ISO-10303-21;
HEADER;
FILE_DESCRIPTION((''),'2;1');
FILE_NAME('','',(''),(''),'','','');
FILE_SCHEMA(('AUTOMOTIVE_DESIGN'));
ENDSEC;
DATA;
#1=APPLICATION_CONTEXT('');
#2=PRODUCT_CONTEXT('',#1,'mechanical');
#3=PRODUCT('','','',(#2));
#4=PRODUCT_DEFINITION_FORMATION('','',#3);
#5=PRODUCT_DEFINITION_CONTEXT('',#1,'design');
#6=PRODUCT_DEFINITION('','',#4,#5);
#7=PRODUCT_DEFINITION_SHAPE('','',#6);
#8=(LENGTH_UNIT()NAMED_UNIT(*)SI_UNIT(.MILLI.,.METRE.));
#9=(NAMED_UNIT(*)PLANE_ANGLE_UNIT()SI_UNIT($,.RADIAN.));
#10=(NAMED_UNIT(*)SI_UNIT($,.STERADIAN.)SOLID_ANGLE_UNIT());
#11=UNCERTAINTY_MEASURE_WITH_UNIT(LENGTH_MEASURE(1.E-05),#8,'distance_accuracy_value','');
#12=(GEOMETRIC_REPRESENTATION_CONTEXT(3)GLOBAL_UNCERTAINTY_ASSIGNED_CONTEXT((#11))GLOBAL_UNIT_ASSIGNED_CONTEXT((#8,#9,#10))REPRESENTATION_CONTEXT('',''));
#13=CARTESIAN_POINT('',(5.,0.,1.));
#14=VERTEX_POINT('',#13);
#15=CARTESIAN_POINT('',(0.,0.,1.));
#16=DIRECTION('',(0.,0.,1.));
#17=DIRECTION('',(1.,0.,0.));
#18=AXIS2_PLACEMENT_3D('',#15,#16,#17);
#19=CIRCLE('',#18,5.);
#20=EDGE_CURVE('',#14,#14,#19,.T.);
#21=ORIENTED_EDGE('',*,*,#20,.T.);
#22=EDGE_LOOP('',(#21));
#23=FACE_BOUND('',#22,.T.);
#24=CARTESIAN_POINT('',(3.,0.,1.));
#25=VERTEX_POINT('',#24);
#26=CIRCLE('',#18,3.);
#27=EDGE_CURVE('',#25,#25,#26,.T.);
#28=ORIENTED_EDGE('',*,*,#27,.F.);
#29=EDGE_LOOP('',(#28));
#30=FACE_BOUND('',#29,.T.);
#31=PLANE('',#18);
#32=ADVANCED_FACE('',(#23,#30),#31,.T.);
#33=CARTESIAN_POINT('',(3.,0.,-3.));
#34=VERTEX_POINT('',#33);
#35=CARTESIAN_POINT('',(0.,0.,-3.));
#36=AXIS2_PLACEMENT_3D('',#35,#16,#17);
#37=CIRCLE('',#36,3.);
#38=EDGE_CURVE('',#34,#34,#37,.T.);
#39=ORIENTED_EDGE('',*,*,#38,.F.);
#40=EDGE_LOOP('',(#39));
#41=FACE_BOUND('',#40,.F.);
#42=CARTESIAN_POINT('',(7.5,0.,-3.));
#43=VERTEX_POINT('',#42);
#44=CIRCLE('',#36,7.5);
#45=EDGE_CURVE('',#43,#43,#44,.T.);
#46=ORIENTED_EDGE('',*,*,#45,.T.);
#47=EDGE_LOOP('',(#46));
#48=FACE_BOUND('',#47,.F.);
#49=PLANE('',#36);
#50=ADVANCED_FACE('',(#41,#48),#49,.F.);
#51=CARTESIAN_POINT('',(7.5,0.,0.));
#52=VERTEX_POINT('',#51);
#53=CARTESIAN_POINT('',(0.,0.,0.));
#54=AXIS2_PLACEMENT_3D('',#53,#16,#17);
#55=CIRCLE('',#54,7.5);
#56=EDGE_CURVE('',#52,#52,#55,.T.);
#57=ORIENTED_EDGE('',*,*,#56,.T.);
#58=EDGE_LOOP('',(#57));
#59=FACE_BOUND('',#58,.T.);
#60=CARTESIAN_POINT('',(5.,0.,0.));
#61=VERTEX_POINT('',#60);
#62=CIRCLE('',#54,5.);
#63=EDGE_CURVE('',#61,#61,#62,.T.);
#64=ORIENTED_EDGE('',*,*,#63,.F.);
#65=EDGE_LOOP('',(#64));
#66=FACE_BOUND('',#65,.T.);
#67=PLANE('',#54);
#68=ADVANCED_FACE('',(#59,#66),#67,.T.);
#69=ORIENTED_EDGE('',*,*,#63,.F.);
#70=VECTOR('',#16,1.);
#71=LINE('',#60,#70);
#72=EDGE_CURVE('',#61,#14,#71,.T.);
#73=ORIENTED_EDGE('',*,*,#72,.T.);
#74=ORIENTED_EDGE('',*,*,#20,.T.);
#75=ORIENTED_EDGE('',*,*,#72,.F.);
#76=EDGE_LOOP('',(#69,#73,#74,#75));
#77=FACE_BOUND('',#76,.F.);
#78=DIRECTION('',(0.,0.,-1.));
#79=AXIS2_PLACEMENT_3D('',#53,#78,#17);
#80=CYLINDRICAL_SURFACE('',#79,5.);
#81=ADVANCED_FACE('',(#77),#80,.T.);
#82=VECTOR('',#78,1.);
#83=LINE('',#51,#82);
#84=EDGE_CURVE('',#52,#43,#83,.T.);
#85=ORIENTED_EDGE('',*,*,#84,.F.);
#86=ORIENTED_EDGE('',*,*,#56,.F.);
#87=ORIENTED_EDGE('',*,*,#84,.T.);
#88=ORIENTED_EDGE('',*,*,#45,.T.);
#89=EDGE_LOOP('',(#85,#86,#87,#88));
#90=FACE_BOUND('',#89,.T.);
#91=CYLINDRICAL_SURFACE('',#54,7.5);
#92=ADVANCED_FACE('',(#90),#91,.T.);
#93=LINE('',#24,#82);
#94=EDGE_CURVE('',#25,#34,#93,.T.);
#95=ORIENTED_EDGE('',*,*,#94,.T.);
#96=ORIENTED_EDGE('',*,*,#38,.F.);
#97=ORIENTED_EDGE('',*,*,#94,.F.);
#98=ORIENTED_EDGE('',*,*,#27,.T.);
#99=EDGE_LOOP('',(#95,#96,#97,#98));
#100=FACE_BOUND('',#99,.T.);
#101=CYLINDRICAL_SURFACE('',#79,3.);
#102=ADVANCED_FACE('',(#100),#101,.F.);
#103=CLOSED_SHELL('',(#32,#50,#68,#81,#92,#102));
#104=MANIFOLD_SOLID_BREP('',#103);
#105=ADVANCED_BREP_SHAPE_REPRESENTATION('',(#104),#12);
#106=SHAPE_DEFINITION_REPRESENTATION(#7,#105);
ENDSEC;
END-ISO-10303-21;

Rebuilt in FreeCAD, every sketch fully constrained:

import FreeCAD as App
import Part
import Sketcher

V = App.Vector

doc = App.newDocument("Part")
body = doc.addObject("PartDesign::Body", "Body")

sketch1 = body.newObject("Sketcher::SketchObject", "Sketch")
sketch1.AttachmentSupport = (doc.getObject("XY_Plane"), [""])
sketch1.MapMode = "FlatFace"
sketch1.addGeometry([
    Part.Circle(V(0, 0, 0), V(0, 0, 1), 7.5),
    Part.Circle(V(0, 0, 0), V(0, 0, 1), 3),
], False)
sketch1.addConstraint([
    Sketcher.Constraint("Coincident", 0, 3, -1, 1),
    Sketcher.Constraint("Coincident", 1, 3, -1, 1),
    Sketcher.Constraint("Diameter", 0, 15.0),
    Sketcher.Constraint("Diameter", 1, 6.0),
])
pad1 = body.newObject("PartDesign::Pad", "Pad")
pad1.Profile = sketch1
pad1.Length = 3
pad1.Reversed = True

sketch2 = body.newObject("Sketcher::SketchObject", "Sketch001")
sketch2.AttachmentSupport = (doc.getObject("XY_Plane"), [""])
sketch2.MapMode = "FlatFace"
sketch2.addGeometry([
    Part.Circle(V(0, 0, 0), V(0, 0, 1), 5),
    Part.Circle(V(0, 0, 0), V(0, 0, 1), 3),
], False)
sketch2.addConstraint([
    Sketcher.Constraint("Coincident", 0, 3, -1, 1),
    Sketcher.Constraint("Coincident", 1, 3, -1, 1),
    Sketcher.Constraint("Diameter", 0, 10.0),
    Sketcher.Constraint("Diameter", 1, 6.0),
])
pad2 = body.newObject("PartDesign::Pad", "Pad001")
pad2.Profile = sketch2
pad2.Length = 1

doc.recompute()
